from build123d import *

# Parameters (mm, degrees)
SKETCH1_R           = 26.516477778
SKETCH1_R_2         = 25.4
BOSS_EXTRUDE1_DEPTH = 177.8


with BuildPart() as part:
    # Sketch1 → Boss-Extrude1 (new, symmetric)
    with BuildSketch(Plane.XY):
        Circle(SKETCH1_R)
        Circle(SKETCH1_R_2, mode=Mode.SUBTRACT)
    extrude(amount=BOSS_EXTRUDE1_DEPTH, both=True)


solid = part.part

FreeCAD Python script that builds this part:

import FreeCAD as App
import Part
import Sketcher

V = App.Vector
Q = App.Units.Quantity

doc = App.newDocument("Part")
body = doc.addObject("PartDesign::Body", "Body")

# Sketch on XY plane
sketch1 = body.newObject("Sketcher::SketchObject", "Sketch")
sketch1.AttachmentSupport = (doc.getObject("XY_Plane"), [""])
sketch1.MapMode = "FlatFace"
sketch1.addGeometry([
    Part.Circle(V(0, 0, 0), V(0, 0, 1), 26.516478),
    Part.Circle(V(0, 0, 0), V(0, 0, 1), 25.4),
], False)
sketch1.addConstraint([
    Sketcher.Constraint("Coincident", 0, 3, -1, 1),
    Sketcher.Constraint("Coincident", 1, 3, -1, 1),
    Sketcher.Constraint("Diameter", 1, Q("2 in")),
    Sketcher.Constraint("Diameter", 0, 53.032956),
])
pad1 = body.newObject("PartDesign::Pad", "Pad")
pad1.Profile = sketch1
pad1.Length = Q("14 in")
pad1.Midplane = True

doc.recompute()
